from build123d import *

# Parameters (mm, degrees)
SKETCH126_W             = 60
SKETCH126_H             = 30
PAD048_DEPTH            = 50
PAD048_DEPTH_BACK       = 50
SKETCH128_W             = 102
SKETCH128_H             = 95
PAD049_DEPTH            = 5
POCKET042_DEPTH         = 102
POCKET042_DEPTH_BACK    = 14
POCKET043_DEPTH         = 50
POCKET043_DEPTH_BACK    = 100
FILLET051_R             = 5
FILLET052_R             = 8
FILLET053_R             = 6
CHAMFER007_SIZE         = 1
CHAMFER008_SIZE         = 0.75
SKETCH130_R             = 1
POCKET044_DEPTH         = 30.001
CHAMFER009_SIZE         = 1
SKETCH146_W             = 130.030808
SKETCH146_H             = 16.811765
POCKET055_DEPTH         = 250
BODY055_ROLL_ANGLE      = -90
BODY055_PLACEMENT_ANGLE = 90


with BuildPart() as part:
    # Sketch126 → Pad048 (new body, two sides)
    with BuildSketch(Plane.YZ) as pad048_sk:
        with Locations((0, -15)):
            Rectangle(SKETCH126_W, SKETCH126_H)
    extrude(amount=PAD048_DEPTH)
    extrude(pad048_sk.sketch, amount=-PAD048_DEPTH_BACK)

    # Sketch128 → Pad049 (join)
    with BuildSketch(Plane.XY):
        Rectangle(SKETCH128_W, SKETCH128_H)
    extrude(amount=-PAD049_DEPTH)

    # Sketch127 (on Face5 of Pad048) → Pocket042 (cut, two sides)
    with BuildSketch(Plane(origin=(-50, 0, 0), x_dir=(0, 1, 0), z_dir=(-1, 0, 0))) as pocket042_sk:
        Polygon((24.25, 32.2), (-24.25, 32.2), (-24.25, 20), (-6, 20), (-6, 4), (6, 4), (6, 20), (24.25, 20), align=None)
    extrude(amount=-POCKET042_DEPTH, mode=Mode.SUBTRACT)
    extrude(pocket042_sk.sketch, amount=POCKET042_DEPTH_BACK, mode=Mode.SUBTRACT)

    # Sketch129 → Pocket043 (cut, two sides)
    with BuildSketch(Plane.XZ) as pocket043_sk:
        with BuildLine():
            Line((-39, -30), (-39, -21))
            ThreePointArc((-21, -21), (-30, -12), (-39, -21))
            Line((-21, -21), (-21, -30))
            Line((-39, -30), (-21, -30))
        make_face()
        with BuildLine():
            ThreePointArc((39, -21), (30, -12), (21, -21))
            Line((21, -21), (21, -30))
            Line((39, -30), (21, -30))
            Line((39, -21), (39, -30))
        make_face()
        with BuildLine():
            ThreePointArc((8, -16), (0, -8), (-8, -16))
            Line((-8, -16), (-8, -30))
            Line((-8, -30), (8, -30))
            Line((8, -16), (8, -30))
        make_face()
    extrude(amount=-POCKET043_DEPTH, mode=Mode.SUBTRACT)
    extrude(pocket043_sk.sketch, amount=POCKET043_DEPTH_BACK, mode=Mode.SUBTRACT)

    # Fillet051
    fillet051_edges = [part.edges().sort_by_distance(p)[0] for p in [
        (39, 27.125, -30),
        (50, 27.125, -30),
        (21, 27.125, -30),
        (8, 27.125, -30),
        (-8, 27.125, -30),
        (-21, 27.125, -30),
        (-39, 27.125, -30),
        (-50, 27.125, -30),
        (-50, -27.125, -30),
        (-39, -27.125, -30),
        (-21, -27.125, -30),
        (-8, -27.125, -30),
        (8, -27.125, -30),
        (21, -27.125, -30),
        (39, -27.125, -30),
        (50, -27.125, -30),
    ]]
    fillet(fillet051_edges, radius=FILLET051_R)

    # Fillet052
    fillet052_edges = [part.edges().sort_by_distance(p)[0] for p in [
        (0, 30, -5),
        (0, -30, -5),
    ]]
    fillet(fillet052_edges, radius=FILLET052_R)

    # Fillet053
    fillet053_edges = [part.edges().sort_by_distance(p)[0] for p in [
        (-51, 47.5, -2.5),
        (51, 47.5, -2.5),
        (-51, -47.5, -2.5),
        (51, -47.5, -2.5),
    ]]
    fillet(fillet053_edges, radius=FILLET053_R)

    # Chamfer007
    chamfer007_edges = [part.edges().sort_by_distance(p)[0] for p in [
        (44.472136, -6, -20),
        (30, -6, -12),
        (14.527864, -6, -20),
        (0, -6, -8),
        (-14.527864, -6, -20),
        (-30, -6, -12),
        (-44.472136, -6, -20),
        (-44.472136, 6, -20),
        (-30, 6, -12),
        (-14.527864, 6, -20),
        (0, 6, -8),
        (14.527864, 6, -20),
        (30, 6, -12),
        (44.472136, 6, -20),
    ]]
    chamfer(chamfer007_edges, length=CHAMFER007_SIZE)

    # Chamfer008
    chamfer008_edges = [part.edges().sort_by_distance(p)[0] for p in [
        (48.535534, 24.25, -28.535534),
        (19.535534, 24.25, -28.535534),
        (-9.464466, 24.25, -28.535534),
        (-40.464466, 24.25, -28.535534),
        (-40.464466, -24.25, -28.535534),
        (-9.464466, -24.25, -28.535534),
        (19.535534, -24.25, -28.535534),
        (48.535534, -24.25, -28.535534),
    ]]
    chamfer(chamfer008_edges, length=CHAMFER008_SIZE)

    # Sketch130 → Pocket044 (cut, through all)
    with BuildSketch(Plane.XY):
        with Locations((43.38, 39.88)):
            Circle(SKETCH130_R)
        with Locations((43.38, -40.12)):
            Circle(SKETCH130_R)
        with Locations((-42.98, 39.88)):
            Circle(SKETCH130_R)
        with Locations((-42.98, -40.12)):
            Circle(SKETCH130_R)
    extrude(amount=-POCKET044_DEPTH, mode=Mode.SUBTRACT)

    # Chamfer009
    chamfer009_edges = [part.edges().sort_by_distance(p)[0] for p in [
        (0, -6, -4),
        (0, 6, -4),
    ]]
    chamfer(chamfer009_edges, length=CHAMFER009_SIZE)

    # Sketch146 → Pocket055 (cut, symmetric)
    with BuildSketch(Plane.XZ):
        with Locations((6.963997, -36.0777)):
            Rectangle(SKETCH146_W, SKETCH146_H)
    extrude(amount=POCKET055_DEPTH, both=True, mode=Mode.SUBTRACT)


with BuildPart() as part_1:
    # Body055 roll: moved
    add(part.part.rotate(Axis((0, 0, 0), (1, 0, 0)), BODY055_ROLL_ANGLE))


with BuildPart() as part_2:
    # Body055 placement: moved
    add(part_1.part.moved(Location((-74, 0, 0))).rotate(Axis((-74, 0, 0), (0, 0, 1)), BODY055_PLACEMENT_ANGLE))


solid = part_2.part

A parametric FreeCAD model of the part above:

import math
import FreeCAD as App
import Part
import Sketcher
from FreeCAD import Vector
Q = App.Units.Quantity


def edges_at(feature, points):
    """Names of the edges that pass closest to the given points."""
    edges = feature.Shape.Edges
    near = lambda p: min(range(len(edges)), key=lambda i: edges[i].distToShape(Part.Vertex(*p))[0])
    return sorted({f"Edge{near(p) + 1}" for p in points})


def add_polygon(sketch, points):
    """Adds a closed chain of lines whose ends are joined by coincident constraints."""
    first, n = sketch.GeometryCount, len(points)
    for a, b in zip(points, points[1:] + points[:1]):
        sketch.addGeometry(Part.LineSegment(App.Vector(*a, 0), App.Vector(*b, 0)), False)
    for i in range(n):
        sketch.addConstraint(Sketcher.Constraint("Coincident", first + i, 2, first + (i + 1) % n, 1))

doc = App.newDocument("Part")
body = doc.addObject("PartDesign::Body", "Body")

sketch1 = body.newObject("Sketcher::SketchObject", "Sketch")
sketch1.AttachmentSupport = (doc.getObject("YZ_Plane"), [""])
sketch1.MapMode = "FlatFace"
add_polygon(sketch1, [(-30, 0), (-30, -30), (30, -30), (30, 0)])
sketch1.addConstraint(Sketcher.Constraint("Vertical", 0))
sketch1.addConstraint(Sketcher.Constraint("Horizontal", 1))
sketch1.addConstraint(Sketcher.Constraint("Vertical", 2))
sketch1.addConstraint(Sketcher.Constraint("Horizontal", 3))
sketch1.addConstraint(Sketcher.Constraint("Symmetric", 2, 2, 3, 2, -1, 1))
sketch1.addConstraint(Sketcher.Constraint("DistanceX", 1, 1, 1, 2, Q("60 mm")))
sketch1.addConstraint(Sketcher.Constraint("DistanceY", 0, 2, 0, 1, Q("30 mm")))
pad1 = body.newObject("PartDesign::Pad", "Pad")
pad1.Profile = sketch1
pad1.Type = "TwoLengths"
pad1.Length = 50
pad1.Length2 = 50

sketch2 = body.newObject("Sketcher::SketchObject", "Sketch001")
sketch2.AttachmentSupport = (doc.getObject("XY_Plane"), [""])
sketch2.MapMode = "FlatFace"
add_polygon(sketch2, [(-51, 48), (-51, -48), (51, -48), (51, 48)])
sketch2.addConstraint(Sketcher.Constraint("Vertical", 0))
sketch2.addConstraint(Sketcher.Constraint("Horizontal", 1))
sketch2.addConstraint(Sketcher.Constraint("Vertical", 2))
sketch2.addConstraint(Sketcher.Constraint("Horizontal", 3))
sketch2.addConstraint(Sketcher.Constraint("Symmetric", 0, 2, 2, 2, -1, 1))
sketch2.addConstraint(Sketcher.Constraint("DistanceX", 1, 1, 1, 2, Q("102 mm")))
sketch2.addConstraint(Sketcher.Constraint("DistanceY", 0, 2, 0, 1, Q("95 mm")))
pad2 = body.newObject("PartDesign::Pad", "Pad001")
pad2.Profile = sketch2
pad2.Length = 5
pad2.Reversed = True

sketch3 = body.newObject("Sketcher::SketchObject", "Sketch002")
sketch3.AttachmentSupport = (doc.getObject("YZ_Plane"), [""])
sketch3.MapMode = "FlatFace"
sketch3.AttachmentOffset = App.Placement(Vector(0, 0, -50), App.Rotation())
add_polygon(sketch3, [(24, -32), (-24, -32), (-24, -20), (-6, -20), (-6, -4), (6, -4), (6, -20), (24, -20)])
sketch3.addConstraint(Sketcher.Constraint("Horizontal", 0))
sketch3.addConstraint(Sketcher.Constraint("Vertical", 1))
sketch3.addConstraint(Sketcher.Constraint("Horizontal", 2))
sketch3.addConstraint(Sketcher.Constraint("Vertical", 3))
sketch3.addConstraint(Sketcher.Constraint("Horizontal", 4))
sketch3.addConstraint(Sketcher.Constraint("Vertical", 5))
sketch3.addConstraint(Sketcher.Constraint("Horizontal", 6))
sketch3.addConstraint(Sketcher.Constraint("Vertical", 7))
sketch3.addConstraint(Sketcher.Constraint("Symmetric", 2, 2, 5, 2, -2))
sketch3.addConstraint(Sketcher.Constraint("Equal", 2, 6))
sketch3.addConstraint(Sketcher.Constraint("DistanceX", 4, 1, 4, 2, Q("12 mm")))
sketch3.addConstraint(Sketcher.Constraint("DistanceY", 3, 1, 3, 2, Q("16 mm")))
sketch3.addConstraint(Sketcher.Constraint("DistanceX", 0, 2, 0, 1, Q("48.5 mm")))
sketch3.addConstraint(Sketcher.Constraint("DistanceY", 1, 1, 1, 2, Q("12.2 mm")))
sketch3.addConstraint(Sketcher.Constraint("DistanceY", 1, 2, -1, 1, Q("20 mm")))
pocket1 = body.newObject("PartDesign::Pocket", "Pocket")
pocket1.Profile = sketch3
pocket1.Type = "ThroughAll"
pocket1.Midplane = True

sketch4 = body.newObject("Sketcher::SketchObject", "Sketch003")
sketch4.AttachmentSupport = (doc.getObject("XZ_Plane"), [""])
sketch4.MapMode = "FlatFace"
sketch4.addGeometry(Part.LineSegment(Vector(-39, -21, 0), Vector(-39, -30, 0)), False)
sketch4.addGeometry(Part.LineSegment(Vector(-39, -30, 0), Vector(-21, -30, 0)), False)
sketch4.addGeometry(Part.LineSegment(Vector(-21, -30, 0), Vector(-21, -21, 0)), False)
sketch4.addGeometry(Part.ArcOfCircle(Part.Circle(Vector(-30, -21, 0), Vector(0, 0, 1), 9), math.radians(0), math.radians(180)), False)
sketch4.addGeometry(Part.ArcOfCircle(Part.Circle(Vector(30, -21, 0), Vector(0, 0, 1), 9), math.radians(0), math.radians(180)), False)
sketch4.addGeometry(Part.LineSegment(Vector(21, -21, 0), Vector(21, -30, 0)), False)
sketch4.addGeometry(Part.LineSegment(Vector(21, -30, 0), Vector(39, -30, 0)), False)
sketch4.addGeometry(Part.LineSegment(Vector(39, -30, 0), Vector(39, -21, 0)), False)
sketch4.addGeometry(Part.ArcOfCircle(Part.Circle(Vector(0, -16, 0), Vector(0, 0, 1), 8), math.radians(0), math.radians(180)), False)
sketch4.addGeometry(Part.LineSegment(Vector(-8, -16, 0), Vector(-8, -30, 0)), False)
sketch4.addGeometry(Part.LineSegment(Vector(-8, -30, 0), Vector(8, -30, 0)), False)
sketch4.addGeometry(Part.LineSegment(Vector(8, -30, 0), Vector(8, -16, 0)), False)
sketch4.addConstraint(Sketcher.Constraint("Coincident", 0, 2, 1, 1))
sketch4.addConstraint(Sketcher.Constraint("Coincident", 1, 2, 2, 1))
sketch4.addConstraint(Sketcher.Constraint("Tangent", 2, 2, 3, 1))
sketch4.addConstraint(Sketcher.Constraint("Tangent", 3, 2, 0, 1))
sketch4.addConstraint(Sketcher.Constraint("Tangent", 4, 2, 5, 1))
sketch4.addConstraint(Sketcher.Constraint("Coincident", 5, 2, 6, 1))
sketch4.addConstraint(Sketcher.Constraint("Coincident", 6, 2, 7, 1))
sketch4.addConstraint(Sketcher.Constraint("Tangent", 7, 2, 4, 1))
sketch4.addConstraint(Sketcher.Constraint("Tangent", 8, 2, 9, 1))
sketch4.addConstraint(Sketcher.Constraint("Coincident", 9, 2, 10, 1))
sketch4.addConstraint(Sketcher.Constraint("Coincident", 10, 2, 11, 1))
sketch4.addConstraint(Sketcher.Constraint("Tangent", 11, 2, 8, 1))
sketch4.addConstraint(Sketcher.Constraint("Vertical", 0))
sketch4.addConstraint(Sketcher.Constraint("Horizontal", 1))
sketch4.addConstraint(Sketcher.Constraint("Vertical", 2))
sketch4.addConstraint(Sketcher.Constraint("Vertical", 5))
sketch4.addConstraint(Sketcher.Constraint("Horizontal", 6))
sketch4.addConstraint(Sketcher.Constraint("Vertical", 7))
sketch4.addConstraint(Sketcher.Constraint("Vertical", 9))
sketch4.addConstraint(Sketcher.Constraint("Horizontal", 10))
sketch4.addConstraint(Sketcher.Constraint("Vertical", 11))
sketch4.addConstraint(Sketcher.Constraint("Equal", 3, 4))
sketch4.addConstraint(Sketcher.Constraint("Symmetric", 3, 3, 4, 3, -2))
sketch4.addConstraint(Sketcher.Constraint("PointOnObject", 8, 3, -2))
sketch4.addConstraint(Sketcher.Constraint("Horizontal", 1, 2, 5, 2))
sketch4.addConstraint(Sketcher.Constraint("Horizontal", 6, 2, 9, 2))
sketch4.addConstraint(Sketcher.Constraint("Radius", 3, Q("9 mm")))
sketch4.addConstraint(Sketcher.Constraint("Radius", 8, Q("8 mm")))
sketch4.addConstraint(Sketcher.Constraint("DistanceY", 0, 2, 0, 1, Q("9 mm")))
sketch4.addConstraint(Sketcher.Constraint("DistanceY", 9, 2, 9, 1, Q("14 mm")))
sketch4.addConstraint(Sketcher.Constraint("DistanceX", 3, 3, -1, 1, Q("30 mm")))
sketch4.addConstraint(Sketcher.Constraint("DistanceY", 3, 3, -1, 1, Q("21 mm")))
pocket2 = body.newObject("PartDesign::Pocket", "Pocket001")
pocket2.Profile = sketch4
pocket2.Type = "ThroughAll"
pocket2.Midplane = True
doc.recompute()

fillet = body.newObject("PartDesign::Fillet", "Fillet")
fillet.Base = (pocket2, edges_at(pocket2, [
    (39, 27.125, -30),
    (50, 27.125, -30),
    (21, 27.125, -30),
    (8, 27.125, -30),
    (-8, 27.125, -30),
    (-21, 27.125, -30),
    (-39, 27.125, -30),
    (-50, 27.125, -30),
    (-50, -27.125, -30),
    (-39, -27.125, -30),
    (-21, -27.125, -30),
    (-8, -27.125, -30),
    (8, -27.125, -30),
    (21, -27.125, -30),
    (39, -27.125, -30),
    (50, -27.125, -30),
]))
fillet.Radius = 5
doc.recompute()

fillet2 = body.newObject("PartDesign::Fillet", "Fillet001")
fillet2.Base = (fillet, edges_at(fillet, [(0, 30, -5), (0, -30, -5)]))
fillet2.Radius = 8
doc.recompute()

fillet3 = body.newObject("PartDesign::Fillet", "Fillet002")
fillet3.Base = (fillet2, edges_at(fillet2, [
    (-51, 47.5, -2.5),
    (51, 47.5, -2.5),
    (-51, -47.5, -2.5),
    (51, -47.5, -2.5),
]))
fillet3.Radius = 6
doc.recompute()

chamfer = body.newObject("PartDesign::Chamfer", "Chamfer")
chamfer.Base = (fillet3, edges_at(fillet3, [
    (44.472, -6, -20),
    (30, -6, -12),
    (14.528, -6, -20),
    (0, -6, -8),
    (-14.528, -6, -20),
    (-30, -6, -12),
    (-44.472, -6, -20),
    (-44.472, 6, -20),
    (-30, 6, -12),
    (-14.528, 6, -20),
    (0, 6, -8),
    (14.528, 6, -20),
    (30, 6, -12),
    (44.472, 6, -20),
]))
chamfer.Size = 1
doc.recompute()

chamfer2 = body.newObject("PartDesign::Chamfer", "Chamfer001")
chamfer2.Base = (chamfer, edges_at(chamfer, [
    (48.536, 24.25, -28.536),
    (19.536, 24.25, -28.536),
    (-9.464, 24.25, -28.536),
    (-40.464, 24.25, -28.536),
    (-40.464, -24.25, -28.536),
    (-9.464, -24.25, -28.536),
    (19.536, -24.25, -28.536),
    (48.536, -24.25, -28.536),
]))
chamfer2.Size = 0.75

sketch5 = body.newObject("Sketcher::SketchObject", "Sketch004")
sketch5.AttachmentSupport = (doc.getObject("XY_Plane"), [""])
sketch5.MapMode = "FlatFace"
sketch5.addGeometry(Part.Circle(Vector(43.4, 39.9, 0), Vector(0, 0, 1), 1), False)
sketch5.addGeometry(Part.Circle(Vector(43.4, -40.1, 0), Vector(0, 0, 1), 1), False)
sketch5.addGeometry(Part.Circle(Vector(-43, 39.9, 0), Vector(0, 0, 1), 1), False)
sketch5.addGeometry(Part.Circle(Vector(-43, -40.1, 0), Vector(0, 0, 1), 1), False)
sketch5.addConstraint(Sketcher.Constraint("Equal", 0, 1))
sketch5.addConstraint(Sketcher.Constraint("Equal", 1, 2))
sketch5.addConstraint(Sketcher.Constraint("Equal", 2, 3))
sketch5.addConstraint(Sketcher.Constraint("Horizontal", 0, 3, 2, 3))
sketch5.addConstraint(Sketcher.Constraint("Horizontal", 1, 3, 3, 3))
sketch5.addConstraint(Sketcher.Constraint("Vertical", 0, 3, 1, 3))
sketch5.addConstraint(Sketcher.Constraint("Vertical", 2, 3, 3, 3))
sketch5.addConstraint(Sketcher.Constraint("Diameter", 0, Q("2 mm")))
sketch5.addConstraint(Sketcher.Constraint("DistanceY", 1, 3, 0, 3, Q("80 mm")))
sketch5.addConstraint(Sketcher.Constraint("DistanceX", -1, 1, 0, 3, Q("43.38 mm")))
sketch5.addConstraint(Sketcher.Constraint("DistanceY", -1, 1, 0, 3, Q("39.88 mm")))
sketch5.addConstraint(Sketcher.Constraint("DistanceX", 2, 3, -1, 1, Q("42.98 mm")))
pocket3 = body.newObject("PartDesign::Pocket", "Pocket002")
pocket3.Profile = sketch5
pocket3.Type = "ThroughAll"
doc.recompute()

chamfer3 = body.newObject("PartDesign::Chamfer", "Chamfer002")
chamfer3.Base = (pocket3, edges_at(pocket3, [(0, -6, -4), (0, 6, -4)]))
chamfer3.Size = 1

sketch6 = body.newObject("Sketcher::SketchObject", "Sketch005")
sketch6.AttachmentSupport = (doc.getObject("XZ_Plane"), [""])
sketch6.MapMode = "FlatFace"
add_polygon(sketch6, [(-58, -28), (-58, -44), (72, -44), (72, -28)])
sketch6.addConstraint(Sketcher.Constraint("Vertical", 0))
sketch6.addConstraint(Sketcher.Constraint("Horizontal", 1))
sketch6.addConstraint(Sketcher.Constraint("Vertical", 2))
sketch6.addConstraint(Sketcher.Constraint("Horizontal", 3))
sketch6.addConstraint(Sketcher.Constraint("DistanceX", -1, 1, 1, 2, Q("71.979401 mm")))
sketch6.addConstraint(Sketcher.Constraint("DistanceX", 1, 1, 1, 2, Q("130.030808 mm")))
sketch6.addConstraint(Sketcher.Constraint("DistanceY", 0, 2, 0, 1, Q("16.811765 mm")))
sketch6.addConstraint(Sketcher.Constraint("DistanceY", 0, 2, -1, 1, Q("44.483582 mm")))
pocket4 = body.newObject("PartDesign::Pocket", "Pocket003")
pocket4.Profile = sketch6
pocket4.Length = 500
pocket4.Midplane = True
body2 = doc.addObject("PartDesign::Body", "Body001")
doc.recompute()

body.Placement = App.Placement(Vector(0, 0, 0), App.Rotation(Vector(1, 0, 0), 270))
boolean = body2.newObject("PartDesign::Boolean", "Boolean")
boolean.Type = "Fuse"
boolean.addObjects([body])
body3 = doc.addObject("PartDesign::Body", "Body002")
doc.recompute()

body2.Placement = App.Placement(Vector(-74, 0, 0), App.Rotation(Vector(0, 0, 1), 90))
boolean2 = body3.newObject("PartDesign::Boolean", "Boolean001")
boolean2.Type = "Fuse"
boolean2.addObjects([body2])

doc.recompute()
